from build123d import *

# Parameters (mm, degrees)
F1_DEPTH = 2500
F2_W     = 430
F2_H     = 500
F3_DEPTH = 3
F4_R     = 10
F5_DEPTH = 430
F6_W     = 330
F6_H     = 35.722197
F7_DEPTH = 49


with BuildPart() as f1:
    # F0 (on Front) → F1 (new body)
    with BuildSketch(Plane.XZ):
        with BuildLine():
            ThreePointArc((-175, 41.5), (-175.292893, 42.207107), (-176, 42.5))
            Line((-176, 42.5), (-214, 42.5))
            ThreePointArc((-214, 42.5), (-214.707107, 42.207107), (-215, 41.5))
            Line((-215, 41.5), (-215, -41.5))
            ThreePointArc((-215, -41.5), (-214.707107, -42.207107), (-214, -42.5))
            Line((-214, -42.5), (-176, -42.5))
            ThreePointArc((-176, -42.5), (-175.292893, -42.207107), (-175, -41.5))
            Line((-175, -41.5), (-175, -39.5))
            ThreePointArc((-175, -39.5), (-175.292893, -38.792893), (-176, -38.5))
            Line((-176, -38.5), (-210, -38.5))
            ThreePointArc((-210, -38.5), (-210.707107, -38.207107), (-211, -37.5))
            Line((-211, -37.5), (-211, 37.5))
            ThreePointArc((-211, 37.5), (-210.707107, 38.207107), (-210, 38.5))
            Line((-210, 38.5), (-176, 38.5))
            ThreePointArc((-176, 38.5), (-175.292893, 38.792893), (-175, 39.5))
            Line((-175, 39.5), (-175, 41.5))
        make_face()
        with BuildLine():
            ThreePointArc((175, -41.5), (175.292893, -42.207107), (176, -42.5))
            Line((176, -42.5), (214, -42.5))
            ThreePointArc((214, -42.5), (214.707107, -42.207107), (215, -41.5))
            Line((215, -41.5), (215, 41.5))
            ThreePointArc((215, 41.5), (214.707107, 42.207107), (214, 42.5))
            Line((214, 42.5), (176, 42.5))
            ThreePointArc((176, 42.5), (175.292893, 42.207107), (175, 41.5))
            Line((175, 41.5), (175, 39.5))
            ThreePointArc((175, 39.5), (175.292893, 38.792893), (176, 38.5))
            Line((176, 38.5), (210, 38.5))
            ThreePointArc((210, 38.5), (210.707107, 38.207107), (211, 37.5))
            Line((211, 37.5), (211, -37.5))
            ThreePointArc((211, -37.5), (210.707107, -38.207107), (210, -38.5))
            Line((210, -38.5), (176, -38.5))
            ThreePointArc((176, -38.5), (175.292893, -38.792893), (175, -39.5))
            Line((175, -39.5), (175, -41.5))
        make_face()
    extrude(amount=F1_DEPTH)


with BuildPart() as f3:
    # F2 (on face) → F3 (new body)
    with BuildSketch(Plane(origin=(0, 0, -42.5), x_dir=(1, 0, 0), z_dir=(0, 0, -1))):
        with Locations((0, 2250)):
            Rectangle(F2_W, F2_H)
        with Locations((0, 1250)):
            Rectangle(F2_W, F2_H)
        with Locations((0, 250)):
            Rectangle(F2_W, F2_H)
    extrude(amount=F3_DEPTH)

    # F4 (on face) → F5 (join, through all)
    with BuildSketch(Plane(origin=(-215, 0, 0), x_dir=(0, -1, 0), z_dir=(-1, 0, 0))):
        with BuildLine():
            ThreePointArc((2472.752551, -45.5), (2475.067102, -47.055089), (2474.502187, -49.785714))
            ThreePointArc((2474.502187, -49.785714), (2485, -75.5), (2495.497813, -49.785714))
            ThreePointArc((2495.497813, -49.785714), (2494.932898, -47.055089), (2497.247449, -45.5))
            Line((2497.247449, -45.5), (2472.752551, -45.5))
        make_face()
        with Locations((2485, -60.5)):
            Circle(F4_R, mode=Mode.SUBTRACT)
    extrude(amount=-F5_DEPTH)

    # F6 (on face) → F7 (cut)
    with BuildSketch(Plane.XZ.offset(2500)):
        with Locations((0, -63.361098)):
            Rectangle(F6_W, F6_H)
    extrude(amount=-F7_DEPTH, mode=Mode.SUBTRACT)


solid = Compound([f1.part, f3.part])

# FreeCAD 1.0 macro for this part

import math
import FreeCAD as App
import Part
import Sketcher

V = App.Vector
Q = App.Units.Quantity


def add_polygon(sketch, points):
    """Adds a closed chain of lines whose ends are joined by coincident constraints."""
    first, n = sketch.GeometryCount, len(points)
    for a, b in zip(points, points[1:] + points[:1]):
        sketch.addGeometry(Part.LineSegment(App.Vector(*a, 0), App.Vector(*b, 0)), False)
    for i in range(n):
        sketch.addConstraint(Sketcher.Constraint("Coincident", first + i, 2, first + (i + 1) % n, 1))

doc = App.newDocument("Part")
params = doc.addObject("Spreadsheet::Sheet", "Params")
for row, (alias, value) in enumerate([
    ("sketch1_radius", "0.999999 mm"),
    ("sketch1_width", "38 mm"),
    ("sketch1_width2", "34 mm"),
    ("sketch1_height", "83 mm"),
    ("sketch1_height2", "2 mm"),
    ("pad1_length", "2500 mm"),
    ("sketch2_width", "430 mm"),
    ("sketch2_height", "500 mm"),
    ("pad2_length", "3 mm"),
    ("sketch3_diameter", "20 mm"),
    ("sketch3_radius", "15 mm"),
    ("sketch3_radius2", "2.5 mm"),
    ("pad3_length", "430 mm"),
    ("sketch4_width", "330 mm"),
    ("pocket1_length", "49 mm"),
], start=1):
    params.set(f"A{row}", alias)
    params.set(f"B{row}", "=" + value)
    params.setAlias(f"B{row}", alias)

body = doc.addObject("PartDesign::Body", "Body")
body.AllowCompound = True

sketch1 = body.newObject("Sketcher::SketchObject", "Sketch")
sketch1.AttachmentSupport = (doc.getObject("XZ_Plane"), [""])
sketch1.MapMode = "FlatFace"
sketch1.addGeometry([
    Part.ArcOfCircle(Part.Circle(V(-176, 41.5, 0), V(0, 0, 1), 1), math.radians(0), math.radians(90)),
    Part.LineSegment(V(-176, 42.5, 0), V(-214, 42.5, 0)),
    Part.ArcOfCircle(Part.Circle(V(-214, 41.5, 0), V(0, 0, 1), 1), math.radians(90), math.radians(180)),
    Part.LineSegment(V(-215, 41.5, 0), V(-215, -41.5, 0)),
    Part.ArcOfCircle(Part.Circle(V(-214, -41.5, 0), V(0, 0, 1), 1), math.radians(180), math.radians(270)),
    Part.LineSegment(V(-214, -42.5, 0), V(-176, -42.5, 0)),
    Part.ArcOfCircle(Part.Circle(V(-176, -41.5, 0), V(0, 0, 1), 1), math.radians(-90), math.radians(0)),
    Part.LineSegment(V(-175, -41.5, 0), V(-175, -39.5, 0)),
    Part.ArcOfCircle(Part.Circle(V(-176, -39.5, 0), V(0, 0, 1), 1), math.radians(0), math.radians(90)),
    Part.LineSegment(V(-176, -38.5, 0), V(-210, -38.5, 0)),
    Part.ArcOfCircle(Part.Circle(V(-210, -37.5, 0), V(0, 0, 1), 1), math.radians(180), math.radians(270)),
    Part.LineSegment(V(-211, -37.5, 0), V(-211, 37.5, 0)),
    Part.ArcOfCircle(Part.Circle(V(-210, 37.5, 0), V(0, 0, 1), 1), math.radians(90), math.radians(180)),
    Part.LineSegment(V(-210, 38.5, 0), V(-176, 38.5, 0)),
    Part.ArcOfCircle(Part.Circle(V(-176, 39.5, 0), V(0, 0, 1), 1), math.radians(-90), math.radians(0)),
    Part.LineSegment(V(-175, 39.5, 0), V(-175, 41.5, 0)),
    Part.ArcOfCircle(Part.Circle(V(176, -41.5, 0), V(0, 0, 1), 1), math.radians(180), math.radians(270)),
    Part.LineSegment(V(176, -42.5, 0), V(214, -42.5, 0)),
    Part.ArcOfCircle(Part.Circle(V(214, -41.5, 0), V(0, 0, 1), 1), math.radians(-90), math.radians(0)),
    Part.LineSegment(V(215, -41.5, 0), V(215, 41.5, 0)),
    Part.ArcOfCircle(Part.Circle(V(214, 41.5, 0), V(0, 0, 1), 1), math.radians(0), math.radians(90)),
    Part.LineSegment(V(214, 42.5, 0), V(176, 42.5, 0)),
    Part.ArcOfCircle(Part.Circle(V(176, 41.5, 0), V(0, 0, 1), 1), math.radians(90), math.radians(180)),
    Part.LineSegment(V(175, 41.5, 0), V(175, 39.5, 0)),
    Part.ArcOfCircle(Part.Circle(V(176, 39.5, 0), V(0, 0, 1), 1), math.radians(180), math.radians(270)),
    Part.LineSegment(V(176, 38.5, 0), V(210, 38.5, 0)),
    Part.ArcOfCircle(Part.Circle(V(210, 37.5, 0), V(0, 0, 1), 1), math.radians(0), math.radians(90)),
    Part.LineSegment(V(211, 37.5, 0), V(211, -37.5, 0)),
    Part.ArcOfCircle(Part.Circle(V(210, -37.5, 0), V(0, 0, 1), 1), math.radians(-90), math.radians(0)),
    Part.LineSegment(V(210, -38.5, 0), V(176, -38.5, 0)),
    Part.ArcOfCircle(Part.Circle(V(176, -39.5, 0), V(0, 0, 1), 1), math.radians(90), math.radians(180)),
    Part.LineSegment(V(175, -39.5, 0), V(175, -41.5, 0)),
], False)
sketch1.addConstraint([
    Sketcher.Constraint("Tangent", 0, 2, 1, 1),
    Sketcher.Constraint("Tangent", 1, 2, 2, 1),
    Sketcher.Constraint("Tangent", 2, 2, 3, 1),
    Sketcher.Constraint("Tangent", 3, 2, 4, 1),
    Sketcher.Constraint("Tangent", 4, 2, 5, 1),
    Sketcher.Constraint("Tangent", 5, 2, 6, 1),
    Sketcher.Constraint("Tangent", 6, 2, 7, 1),
    Sketcher.Constraint("Tangent", 7, 2, 8, 1),
    Sketcher.Constraint("Tangent", 8, 2, 9, 1),
    Sketcher.Constraint("Tangent", 9, 2, 10, 2),
    Sketcher.Constraint("Tangent", 10, 1, 11, 1),
    Sketcher.Constraint("Tangent", 11, 2, 12, 2),
    Sketcher.Constraint("Tangent", 12, 1, 13, 1),
    Sketcher.Constraint("Tangent", 13, 2, 14, 1),
    Sketcher.Constraint("Tangent", 14, 2, 15, 1),
    Sketcher.Constraint("Tangent", 15, 2, 0, 1),
    Sketcher.Constraint("Tangent", 16, 2, 17, 1),
    Sketcher.Constraint("Tangent", 17, 2, 18, 1),
    Sketcher.Constraint("Tangent", 18, 2, 19, 1),
    Sketcher.Constraint("Tangent", 19, 2, 20, 1),
    Sketcher.Constraint("Tangent", 20, 2, 21, 1),
    Sketcher.Constraint("Tangent", 21, 2, 22, 1),
    Sketcher.Constraint("Tangent", 22, 2, 23, 1),
    Sketcher.Constraint("Tangent", 23, 2, 24, 1),
    Sketcher.Constraint("Tangent", 24, 2, 25, 1),
    Sketcher.Constraint("Tangent", 25, 2, 26, 2),
    Sketcher.Constraint("Tangent", 26, 1, 27, 1),
    Sketcher.Constraint("Tangent", 27, 2, 28, 2),
    Sketcher.Constraint("Tangent", 28, 1, 29, 1),
    Sketcher.Constraint("Tangent", 29, 2, 30, 1),
    Sketcher.Constraint("Tangent", 30, 2, 31, 1),
    Sketcher.Constraint("Tangent", 31, 2, 16, 1),
    Sketcher.Constraint("Horizontal", 1),
    Sketcher.Constraint("Vertical", 3),
    Sketcher.Constraint("Horizontal", 5),
    Sketcher.Constraint("Vertical", 7),
    Sketcher.Constraint("Horizontal", 9),
    Sketcher.Constraint("Vertical", 11),
    Sketcher.Constraint("Horizontal", 13),
    Sketcher.Constraint("Vertical", 15),
    Sketcher.Constraint("Horizontal", 17),
    Sketcher.Constraint("Vertical", 19),
    Sketcher.Constraint("Horizontal", 21),
    Sketcher.Constraint("Vertical", 23),
    Sketcher.Constraint("Horizontal", 25),
    Sketcher.Constraint("Vertical", 27),
    Sketcher.Constraint("Horizontal", 29),
    Sketcher.Constraint("Vertical", 31),
    Sketcher.Constraint("Equal", 0, 2),
    Sketcher.Constraint("Equal", 2, 4),
    Sketcher.Constraint("Equal", 4, 6),
    Sketcher.Constraint("Equal", 6, 8),
    Sketcher.Constraint("Equal", 8, 10),
    Sketcher.Constraint("Equal", 10, 12),
    Sketcher.Constraint("Equal", 12, 14),
    Sketcher.Constraint("Equal", 14, 16),
    Sketcher.Constraint("Equal", 16, 18),
    Sketcher.Constraint("Equal", 18, 20),
    Sketcher.Constraint("Equal", 20, 22),
    Sketcher.Constraint("Equal", 22, 24),
    Sketcher.Constraint("Equal", 24, 26),
    Sketcher.Constraint("Equal", 26, 28),
    Sketcher.Constraint("Equal", 28, 30),
    Sketcher.Constraint("Symmetric", 0, 3, 16, 3, -1, 1),
    Sketcher.Constraint("Symmetric", 4, 3, 20, 3, -1, 1),
    Sketcher.Constraint("Symmetric", 8, 3, 24, 3, -1, 1),
    Sketcher.Constraint("Symmetric", 12, 3, 28, 3, -1, 1),
    Sketcher.Constraint("Symmetric", 6, 3, 16, 3, -2),
    Sketcher.Constraint("Horizontal", 14, 3, 24, 3),
    Sketcher.Constraint("Radius", 0, Q("0.999999 mm")),
    Sketcher.Constraint("DistanceX", 1, 2, 1, 1, Q("38 mm")),
    Sketcher.Constraint("DistanceX", 9, 2, 9, 1, Q("34 mm")),
    Sketcher.Constraint("DistanceY", 3, 2, 3, 1, Q("83 mm")),
    Sketcher.Constraint("DistanceY", 7, 1, 7, 2, Q("2 mm")),
    Sketcher.Constraint("DistanceX", 0, 3, -1, 1, Q("175.999999 mm")),
])
sketch1.setExpression("Constraints[69]", "Params.sketch1_radius")
sketch1.setExpression("Constraints[70]", "Params.sketch1_width")
sketch1.setExpression("Constraints[71]", "Params.sketch1_width2")
sketch1.setExpression("Constraints[72]", "Params.sketch1_height")
sketch1.setExpression("Constraints[73]", "Params.sketch1_height2")
pad1 = body.newObject("PartDesign::Pad", "Pad")
pad1.Profile = sketch1
pad1.setExpression("Length", "Params.pad1_length")
body2 = doc.addObject("PartDesign::Body", "Body001")
body2.AllowCompound = True

sketch2 = body2.newObject("Sketcher::SketchObject", "Sketch001")
sketch2.AttachmentSupport = (doc.getObject("XY_Plane001"), [""])
sketch2.MapMode = "FlatFace"
sketch2.AttachmentOffset = App.Placement(V(0, 0, -42.5), App.Rotation())
add_polygon(sketch2, [(-215, -2500), (-215, -2000), (215, -2000), (215, -2500)])
add_polygon(sketch2, [(-215, -1500), (-215, -1000), (215, -1000), (215, -1500)])
add_polygon(sketch2, [(-215, -500), (-215, 0), (215, 0), (215, -500)])
sketch2.addConstraint([
    Sketcher.Constraint("Vertical", 0),
    Sketcher.Constraint("Horizontal", 1),
    Sketcher.Constraint("Vertical", 2),
    Sketcher.Constraint("Horizontal", 3),
    Sketcher.Constraint("Vertical", 4),
    Sketcher.Constraint("Horizontal", 5),
    Sketcher.Constraint("Vertical", 6),
    Sketcher.Constraint("Horizontal", 7),
    Sketcher.Constraint("Vertical", 8),
    Sketcher.Constraint("Horizontal", 9),
    Sketcher.Constraint("Vertical", 10),
    Sketcher.Constraint("Horizontal", 11),
    Sketcher.Constraint("Symmetric", 8, 2, 9, 2, -1, 1),
    Sketcher.Constraint("Vertical", 3, 2, 4, 2),
    Sketcher.Constraint("Vertical", 2, 2, 5, 2),
    Sketcher.Constraint("Vertical", 7, 2, 8, 2),
    Sketcher.Constraint("Vertical", 6, 2, 9, 2),
    Sketcher.Constraint("Equal", 2, 4),
    Sketcher.Constraint("Equal", 6, 8),
    Sketcher.Constraint("DistanceX", 1, 1, 1, 2, Q("430 mm")),
    Sketcher.Constraint("DistanceY", 0, 1, 0, 2, Q("500 mm")),
    Sketcher.Constraint("DistanceY", 0, 2, -1, 1, Q("2000 mm")),
    Sketcher.Constraint("DistanceY", 4, 2, -1, 1, Q("1000 mm")),
])
sketch2.setExpression("Constraints[31]", "Params.sketch2_width")
sketch2.setExpression("Constraints[32]", "Params.sketch2_height")
pad2 = body2.newObject("PartDesign::Pad", "Pad001")
pad2.Profile = sketch2
pad2.setExpression("Length", "Params.pad2_length")
pad2.Reversed = True

sketch3 = body2.newObject("Sketcher::SketchObject", "Sketch002")
sketch3.AttachmentSupport = (doc.getObject("YZ_Plane001"), [""])
sketch3.MapMode = "FlatFace"
sketch3.AttachmentOffset = App.Placement(V(0, 0, -215), App.Rotation())
sketch3.addGeometry([
    Part.ArcOfCircle(Part.Circle(V(-2472.8, -48, 0), V(0, 0, 1), 2.5), math.radians(90), math.radians(226)),
    Part.ArcOfCircle(Part.Circle(V(-2485, -60.5, 0), V(0, 0, 1), 15), math.radians(134), math.radians(406)),
    Part.ArcOfCircle(Part.Circle(V(-2497.2, -48, 0), V(0, 0, 1), 2.5), math.radians(-46), math.radians(90)),
    Part.LineSegment(V(-2497.2, -45.5, 0), V(-2472.8, -45.5, 0)),
    Part.Circle(V(-2485, -60.5, 0), V(0, 0, 1), 10),
], False)
sketch3.addConstraint([
    Sketcher.Constraint("Tangent", 0, 2, 1, 2),
    Sketcher.Constraint("Tangent", 1, 1, 2, 1),
    Sketcher.Constraint("Tangent", 2, 2, 3, 1),
    Sketcher.Constraint("Tangent", 3, 2, 0, 1),
    Sketcher.Constraint("Horizontal", 3),
    Sketcher.Constraint("Coincident", 4, 3, 1, 3),
    Sketcher.Constraint("Equal", 0, 2),
    Sketcher.Constraint("Diameter", 4, Q("20 mm")),
    Sketcher.Constraint("Radius", 1, Q("15 mm")),
    Sketcher.Constraint("Radius", 0, Q("2.5 mm")),
    Sketcher.Constraint("DistanceY", 0, 3, -1, 1, Q("48 mm")),
    Sketcher.Constraint("DistanceX", 1, 3, -1, 1, Q("2485 mm")),
    Sketcher.Constraint("DistanceY", 1, 3, 2, 2, Q("15 mm")),
])
sketch3.setExpression("Constraints[7]", "Params.sketch3_diameter")
sketch3.setExpression("Constraints[8]", "Params.sketch3_radius")
sketch3.setExpression("Constraints[9]", "Params.sketch3_radius2")
pad3 = body2.newObject("PartDesign::Pad", "Pad002")
pad3.Profile = sketch3
pad3.setExpression("Length", "Params.pad3_length")

sketch4 = body2.newObject("Sketcher::SketchObject", "Sketch003")
sketch4.AttachmentSupport = (doc.getObject("XZ_Plane001"), [""])
sketch4.MapMode = "FlatFace"
sketch4.AttachmentOffset = App.Placement(V(0, 0, 2500), App.Rotation())
add_polygon(sketch4, [(-165, -45), (-165, -81), (165, -81), (165, -45)])
sketch4.addConstraint([
    Sketcher.Constraint("Vertical", 0),
    Sketcher.Constraint("Horizontal", 1),
    Sketcher.Constraint("Vertical", 2),
    Sketcher.Constraint("Horizontal", 3),
    Sketcher.Constraint("DistanceX", 1, 1, 1, 2, Q("330 mm")),
    Sketcher.Constraint("DistanceX", 0, 2, -1, 1, Q("165 mm")),
    Sketcher.Constraint("DistanceY", 2, 2, -1, 1, Q("45.5 mm")),
    Sketcher.Constraint("DistanceY", 0, 2, 0, 1, Q("35.722197 mm")),
])
sketch4.setExpression("Constraints[8]", "Params.sketch4_width")
pocket1 = body2.newObject("PartDesign::Pocket", "Pocket")
pocket1.Profile = sketch4
pocket1.setExpression("Length", "Params.pocket1_length")

doc.recompute()
